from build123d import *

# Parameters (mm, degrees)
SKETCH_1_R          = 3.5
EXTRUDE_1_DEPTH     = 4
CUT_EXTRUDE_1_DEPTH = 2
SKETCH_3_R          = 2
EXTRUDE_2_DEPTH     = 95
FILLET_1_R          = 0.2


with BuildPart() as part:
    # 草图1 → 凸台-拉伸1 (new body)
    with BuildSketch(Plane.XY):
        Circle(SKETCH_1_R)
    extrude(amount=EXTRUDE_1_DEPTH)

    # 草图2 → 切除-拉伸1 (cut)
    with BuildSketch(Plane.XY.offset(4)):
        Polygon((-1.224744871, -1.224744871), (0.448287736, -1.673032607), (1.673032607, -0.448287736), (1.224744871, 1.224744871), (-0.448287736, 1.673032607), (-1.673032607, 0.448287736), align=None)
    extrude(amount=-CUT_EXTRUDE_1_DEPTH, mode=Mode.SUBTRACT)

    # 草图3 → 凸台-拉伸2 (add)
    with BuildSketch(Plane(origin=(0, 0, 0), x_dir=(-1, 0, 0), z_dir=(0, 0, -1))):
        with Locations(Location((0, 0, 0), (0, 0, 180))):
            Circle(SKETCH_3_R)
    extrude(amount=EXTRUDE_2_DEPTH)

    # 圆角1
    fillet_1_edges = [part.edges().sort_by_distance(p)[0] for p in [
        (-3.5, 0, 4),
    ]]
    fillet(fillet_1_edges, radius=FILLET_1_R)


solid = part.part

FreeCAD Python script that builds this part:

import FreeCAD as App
import Part
import Sketcher
Q = App.Units.Quantity


def edges_at(feature, points):
    """Names of the edges that pass closest to the given points."""
    edges = feature.Shape.Edges
    near = lambda p: min(range(len(edges)), key=lambda i: edges[i].distToShape(Part.Vertex(*p))[0])
    return sorted({f"Edge{near(p) + 1}" for p in points})


def add_polygon(sketch, points):
    """Adds a closed chain of lines whose ends are joined by coincident constraints."""
    first, n = sketch.GeometryCount, len(points)
    for a, b in zip(points, points[1:] + points[:1]):
        sketch.addGeometry(Part.LineSegment(App.Vector(*a, 0), App.Vector(*b, 0)), False)
    for i in range(n):
        sketch.addConstraint(Sketcher.Constraint("Coincident", first + i, 2, first + (i + 1) % n, 1))

doc = App.newDocument("Part")
params = doc.addObject("Spreadsheet::Sheet", "Params")
for row, (alias, value) in enumerate([
    ("sketch1_diameter", "7 mm"),
    ("pad1_length", "4 mm"),
    ("pocket1_length", "2 mm"),
    ("sketch3_diameter", "4 mm"),
    ("pad2_length", "95 mm"),
    ("fillet_radius", "0.2 mm"),
], start=1):
    params.set(f"A{row}", alias)
    params.set(f"B{row}", "=" + value)
    params.setAlias(f"B{row}", alias)

body = doc.addObject("PartDesign::Body", "Body")

# Sketch on XY plane
sketch1 = body.newObject("Sketcher::SketchObject", "Sketch")
sketch1.AttachmentSupport = (doc.getObject("XY_Plane"), [""])
sketch1.MapMode = "FlatFace"
sketch1.addGeometry(Part.Circle(App.Vector(0, 0, 0), App.Vector(0, 0, 1), 3.5), False)
sketch1.addConstraint(Sketcher.Constraint("Coincident", 0, 3, -1, 1))
sketch1.addConstraint(Sketcher.Constraint("Diameter", 0, Q("7 mm")))
sketch1.setExpression("Constraints[1]", "Params.sketch1_diameter")
pad1 = body.newObject("PartDesign::Pad", "Pad")
pad1.Profile = sketch1
pad1.setExpression("Length", "Params.pad1_length")

# Sketch on XY plane
sketch2 = body.newObject("Sketcher::SketchObject", "Sketch001")
sketch2.AttachmentSupport = (doc.getObject("XY_Plane"), [""])
sketch2.MapMode = "FlatFace"
sketch2.AttachmentOffset = App.Placement(App.Vector(0, 0, 4), App.Rotation())
add_polygon(sketch2, [(-1.224745, -1.224745), (0.448288, -1.673033), (1.673033, -0.448288), (1.224745, 1.224745), (-0.448288, 1.673033), (-1.673033, 0.448288)])  # lines 0-5
sketch2.addConstraint(Sketcher.Constraint("Symmetric", 0, 2, 3, 2, -1, 1))
sketch2.addConstraint(Sketcher.Constraint("Symmetric", 1, 2, 4, 2, -1, 1))
sketch2.addConstraint(Sketcher.Constraint("Symmetric", 2, 2, 5, 2, -1, 1))
sketch2.addConstraint(Sketcher.Constraint("Equal", 0, 1))
sketch2.addConstraint(Sketcher.Constraint("Equal", 1, 2))
sketch2.addConstraint(Sketcher.Constraint("Angle", 0, Q("-15 deg")))
sketch2.addConstraint(Sketcher.Constraint("Angle", 1, Q("45 deg")))
sketch2.addConstraint(Sketcher.Constraint("Angle", 2, Q("105 deg")))
sketch2.addConstraint(Sketcher.Constraint("Distance", 0, Q("1.732051 mm")))
pocket1 = body.newObject("PartDesign::Pocket", "Pocket")
pocket1.Profile = sketch2
pocket1.setExpression("Length", "Params.pocket1_length")

# Sketch on XY plane
sketch3 = body.newObject("Sketcher::SketchObject", "Sketch002")
sketch3.AttachmentSupport = (doc.getObject("XY_Plane"), [""])
sketch3.MapMode = "FlatFace"
sketch3.addGeometry(Part.Circle(App.Vector(0, 0, 0), App.Vector(0, 0, 1), 2), False)
sketch3.addConstraint(Sketcher.Constraint("Coincident", 0, 3, -1, 1))
sketch3.addConstraint(Sketcher.Constraint("Diameter", 0, Q("4 mm")))
sketch3.setExpression("Constraints[1]", "Params.sketch3_diameter")
pad2 = body.newObject("PartDesign::Pad", "Pad001")
pad2.Profile = sketch3
pad2.setExpression("Length", "Params.pad2_length")
pad2.Reversed = True
doc.recompute()

fillet = body.newObject("PartDesign::Fillet", "Fillet")
fillet.Base = (pad2, edges_at(pad2, [(-3.5, 0, 4)]))
fillet.setExpression("Radius", "Params.fillet_radius")

doc.recompute()
